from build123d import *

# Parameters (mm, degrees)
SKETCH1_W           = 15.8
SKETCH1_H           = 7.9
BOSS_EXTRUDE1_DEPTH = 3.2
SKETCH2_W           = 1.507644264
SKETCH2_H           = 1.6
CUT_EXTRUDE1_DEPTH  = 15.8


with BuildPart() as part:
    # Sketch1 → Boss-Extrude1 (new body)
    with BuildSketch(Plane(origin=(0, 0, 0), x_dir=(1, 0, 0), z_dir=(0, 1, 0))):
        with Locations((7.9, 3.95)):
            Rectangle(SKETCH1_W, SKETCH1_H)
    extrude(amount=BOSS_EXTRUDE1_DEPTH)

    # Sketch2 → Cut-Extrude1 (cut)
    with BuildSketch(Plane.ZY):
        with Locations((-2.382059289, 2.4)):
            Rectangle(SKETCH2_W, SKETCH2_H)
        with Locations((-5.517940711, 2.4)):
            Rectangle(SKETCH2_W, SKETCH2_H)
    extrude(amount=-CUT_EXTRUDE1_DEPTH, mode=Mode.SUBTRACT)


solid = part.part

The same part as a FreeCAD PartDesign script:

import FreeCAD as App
import Part
import Sketcher
Q = App.Units.Quantity

doc = App.newDocument("Part")
body = doc.addObject("PartDesign::Body", "Body")

# Sketch on XZ plane
sketch1 = body.newObject("Sketcher::SketchObject", "Sketch")
sketch1.AttachmentSupport = (doc.getObject("XZ_Plane"), [""])
sketch1.MapMode = "FlatFace"
sketch1.addGeometry([
    Part.LineSegment(App.Vector(0, -8, 0), App.Vector(0, 0, 0)),
    Part.LineSegment(App.Vector(0, 0, 0), App.Vector(16, 0, 0)),
    Part.LineSegment(App.Vector(16, 0, 0), App.Vector(16, -8, 0)),
    Part.LineSegment(App.Vector(16, -8, 0), App.Vector(0, -8, 0)),
], False)
sketch1.addConstraint([
    Sketcher.Constraint("Coincident", 0, 2, 1, 1),
    Sketcher.Constraint("Coincident", 1, 2, 2, 1),
    Sketcher.Constraint("Coincident", 2, 2, 3, 1),
    Sketcher.Constraint("Coincident", 3, 2, 0, 1),
    Sketcher.Constraint("Vertical", 0),
    Sketcher.Constraint("Horizontal", 1),
    Sketcher.Constraint("Vertical", 2),
    Sketcher.Constraint("Horizontal", 3),
    Sketcher.Constraint("Coincident", 0, 2, -1, 1),
    Sketcher.Constraint("DistanceX", 1, 1, 1, 2, Q("15.8 mm")),
    Sketcher.Constraint("DistanceY", 0, 1, 0, 2, Q("7.9 mm")),
])
pad1 = body.newObject("PartDesign::Pad", "Pad")
pad1.Profile = sketch1
pad1.Length = 3.2
pad1.Reversed = True

# Sketch on YZ plane
sketch2 = body.newObject("Sketcher::SketchObject", "Sketch001")
sketch2.AttachmentSupport = (doc.getObject("YZ_Plane"), [""])
sketch2.MapMode = "FlatFace"
sketch2.addGeometry([
    Part.LineSegment(App.Vector(3.2, -3.1, 0), App.Vector(1.6, -3.1, 0)),  # 0
    Part.LineSegment(App.Vector(1.6, -3.1, 0), App.Vector(1.6, -1.6, 0)),  # 1
    Part.LineSegment(App.Vector(1.6, -1.6, 0), App.Vector(3.2, -1.6, 0)),  # 2
    Part.LineSegment(App.Vector(3.2, -1.6, 0), App.Vector(3.2, -3.1, 0)),  # 3
    Part.LineSegment(App.Vector(3.2, -6.3, 0), App.Vector(1.6, -6.3, 0)),  # 4
    Part.LineSegment(App.Vector(1.6, -6.3, 0), App.Vector(1.6, -4.8, 0)),  # 5
    Part.LineSegment(App.Vector(1.6, -4.8, 0), App.Vector(3.2, -4.8, 0)),  # 6
    Part.LineSegment(App.Vector(3.2, -4.8, 0), App.Vector(3.2, -6.3, 0)),  # 7
], False)
sketch2.addConstraint([
    Sketcher.Constraint("Coincident", 0, 2, 1, 1),
    Sketcher.Constraint("Coincident", 1, 2, 2, 1),
    Sketcher.Constraint("Coincident", 2, 2, 3, 1),
    Sketcher.Constraint("Coincident", 3, 2, 0, 1),
    Sketcher.Constraint("Coincident", 4, 2, 5, 1),
    Sketcher.Constraint("Coincident", 5, 2, 6, 1),
    Sketcher.Constraint("Coincident", 6, 2, 7, 1),
    Sketcher.Constraint("Coincident", 7, 2, 4, 1),
    Sketcher.Constraint("Horizontal", 0),
    Sketcher.Constraint("Vertical", 1),
    Sketcher.Constraint("Horizontal", 2),
    Sketcher.Constraint("Vertical", 3),
    Sketcher.Constraint("Horizontal", 4),
    Sketcher.Constraint("Vertical", 5),
    Sketcher.Constraint("Horizontal", 6),
    Sketcher.Constraint("Vertical", 7),
    Sketcher.Constraint("Vertical", 1, 2, 4, 2),
    Sketcher.Constraint("Vertical", 3, 2, 6, 2),
    Sketcher.Constraint("Equal", 3, 5),
    Sketcher.Constraint("DistanceX", 0, 2, 0, 1, Q("1.6 mm")),
    Sketcher.Constraint("DistanceX", -1, 1, 0, 2, Q("1.6 mm")),
    Sketcher.Constraint("DistanceY", 1, 1, 1, 2, Q("1.507644 mm")),
    Sketcher.Constraint("DistanceY", 0, 2, -1, 1, Q("3.135881 mm")),
    Sketcher.Constraint("DistanceY", 5, 2, -1, 1, Q("4.764119 mm")),
])
pocket1 = body.newObject("PartDesign::Pocket", "Pocket")
pocket1.Profile = sketch2
pocket1.Length = 15.8
pocket1.Reversed = True

doc.recompute()
